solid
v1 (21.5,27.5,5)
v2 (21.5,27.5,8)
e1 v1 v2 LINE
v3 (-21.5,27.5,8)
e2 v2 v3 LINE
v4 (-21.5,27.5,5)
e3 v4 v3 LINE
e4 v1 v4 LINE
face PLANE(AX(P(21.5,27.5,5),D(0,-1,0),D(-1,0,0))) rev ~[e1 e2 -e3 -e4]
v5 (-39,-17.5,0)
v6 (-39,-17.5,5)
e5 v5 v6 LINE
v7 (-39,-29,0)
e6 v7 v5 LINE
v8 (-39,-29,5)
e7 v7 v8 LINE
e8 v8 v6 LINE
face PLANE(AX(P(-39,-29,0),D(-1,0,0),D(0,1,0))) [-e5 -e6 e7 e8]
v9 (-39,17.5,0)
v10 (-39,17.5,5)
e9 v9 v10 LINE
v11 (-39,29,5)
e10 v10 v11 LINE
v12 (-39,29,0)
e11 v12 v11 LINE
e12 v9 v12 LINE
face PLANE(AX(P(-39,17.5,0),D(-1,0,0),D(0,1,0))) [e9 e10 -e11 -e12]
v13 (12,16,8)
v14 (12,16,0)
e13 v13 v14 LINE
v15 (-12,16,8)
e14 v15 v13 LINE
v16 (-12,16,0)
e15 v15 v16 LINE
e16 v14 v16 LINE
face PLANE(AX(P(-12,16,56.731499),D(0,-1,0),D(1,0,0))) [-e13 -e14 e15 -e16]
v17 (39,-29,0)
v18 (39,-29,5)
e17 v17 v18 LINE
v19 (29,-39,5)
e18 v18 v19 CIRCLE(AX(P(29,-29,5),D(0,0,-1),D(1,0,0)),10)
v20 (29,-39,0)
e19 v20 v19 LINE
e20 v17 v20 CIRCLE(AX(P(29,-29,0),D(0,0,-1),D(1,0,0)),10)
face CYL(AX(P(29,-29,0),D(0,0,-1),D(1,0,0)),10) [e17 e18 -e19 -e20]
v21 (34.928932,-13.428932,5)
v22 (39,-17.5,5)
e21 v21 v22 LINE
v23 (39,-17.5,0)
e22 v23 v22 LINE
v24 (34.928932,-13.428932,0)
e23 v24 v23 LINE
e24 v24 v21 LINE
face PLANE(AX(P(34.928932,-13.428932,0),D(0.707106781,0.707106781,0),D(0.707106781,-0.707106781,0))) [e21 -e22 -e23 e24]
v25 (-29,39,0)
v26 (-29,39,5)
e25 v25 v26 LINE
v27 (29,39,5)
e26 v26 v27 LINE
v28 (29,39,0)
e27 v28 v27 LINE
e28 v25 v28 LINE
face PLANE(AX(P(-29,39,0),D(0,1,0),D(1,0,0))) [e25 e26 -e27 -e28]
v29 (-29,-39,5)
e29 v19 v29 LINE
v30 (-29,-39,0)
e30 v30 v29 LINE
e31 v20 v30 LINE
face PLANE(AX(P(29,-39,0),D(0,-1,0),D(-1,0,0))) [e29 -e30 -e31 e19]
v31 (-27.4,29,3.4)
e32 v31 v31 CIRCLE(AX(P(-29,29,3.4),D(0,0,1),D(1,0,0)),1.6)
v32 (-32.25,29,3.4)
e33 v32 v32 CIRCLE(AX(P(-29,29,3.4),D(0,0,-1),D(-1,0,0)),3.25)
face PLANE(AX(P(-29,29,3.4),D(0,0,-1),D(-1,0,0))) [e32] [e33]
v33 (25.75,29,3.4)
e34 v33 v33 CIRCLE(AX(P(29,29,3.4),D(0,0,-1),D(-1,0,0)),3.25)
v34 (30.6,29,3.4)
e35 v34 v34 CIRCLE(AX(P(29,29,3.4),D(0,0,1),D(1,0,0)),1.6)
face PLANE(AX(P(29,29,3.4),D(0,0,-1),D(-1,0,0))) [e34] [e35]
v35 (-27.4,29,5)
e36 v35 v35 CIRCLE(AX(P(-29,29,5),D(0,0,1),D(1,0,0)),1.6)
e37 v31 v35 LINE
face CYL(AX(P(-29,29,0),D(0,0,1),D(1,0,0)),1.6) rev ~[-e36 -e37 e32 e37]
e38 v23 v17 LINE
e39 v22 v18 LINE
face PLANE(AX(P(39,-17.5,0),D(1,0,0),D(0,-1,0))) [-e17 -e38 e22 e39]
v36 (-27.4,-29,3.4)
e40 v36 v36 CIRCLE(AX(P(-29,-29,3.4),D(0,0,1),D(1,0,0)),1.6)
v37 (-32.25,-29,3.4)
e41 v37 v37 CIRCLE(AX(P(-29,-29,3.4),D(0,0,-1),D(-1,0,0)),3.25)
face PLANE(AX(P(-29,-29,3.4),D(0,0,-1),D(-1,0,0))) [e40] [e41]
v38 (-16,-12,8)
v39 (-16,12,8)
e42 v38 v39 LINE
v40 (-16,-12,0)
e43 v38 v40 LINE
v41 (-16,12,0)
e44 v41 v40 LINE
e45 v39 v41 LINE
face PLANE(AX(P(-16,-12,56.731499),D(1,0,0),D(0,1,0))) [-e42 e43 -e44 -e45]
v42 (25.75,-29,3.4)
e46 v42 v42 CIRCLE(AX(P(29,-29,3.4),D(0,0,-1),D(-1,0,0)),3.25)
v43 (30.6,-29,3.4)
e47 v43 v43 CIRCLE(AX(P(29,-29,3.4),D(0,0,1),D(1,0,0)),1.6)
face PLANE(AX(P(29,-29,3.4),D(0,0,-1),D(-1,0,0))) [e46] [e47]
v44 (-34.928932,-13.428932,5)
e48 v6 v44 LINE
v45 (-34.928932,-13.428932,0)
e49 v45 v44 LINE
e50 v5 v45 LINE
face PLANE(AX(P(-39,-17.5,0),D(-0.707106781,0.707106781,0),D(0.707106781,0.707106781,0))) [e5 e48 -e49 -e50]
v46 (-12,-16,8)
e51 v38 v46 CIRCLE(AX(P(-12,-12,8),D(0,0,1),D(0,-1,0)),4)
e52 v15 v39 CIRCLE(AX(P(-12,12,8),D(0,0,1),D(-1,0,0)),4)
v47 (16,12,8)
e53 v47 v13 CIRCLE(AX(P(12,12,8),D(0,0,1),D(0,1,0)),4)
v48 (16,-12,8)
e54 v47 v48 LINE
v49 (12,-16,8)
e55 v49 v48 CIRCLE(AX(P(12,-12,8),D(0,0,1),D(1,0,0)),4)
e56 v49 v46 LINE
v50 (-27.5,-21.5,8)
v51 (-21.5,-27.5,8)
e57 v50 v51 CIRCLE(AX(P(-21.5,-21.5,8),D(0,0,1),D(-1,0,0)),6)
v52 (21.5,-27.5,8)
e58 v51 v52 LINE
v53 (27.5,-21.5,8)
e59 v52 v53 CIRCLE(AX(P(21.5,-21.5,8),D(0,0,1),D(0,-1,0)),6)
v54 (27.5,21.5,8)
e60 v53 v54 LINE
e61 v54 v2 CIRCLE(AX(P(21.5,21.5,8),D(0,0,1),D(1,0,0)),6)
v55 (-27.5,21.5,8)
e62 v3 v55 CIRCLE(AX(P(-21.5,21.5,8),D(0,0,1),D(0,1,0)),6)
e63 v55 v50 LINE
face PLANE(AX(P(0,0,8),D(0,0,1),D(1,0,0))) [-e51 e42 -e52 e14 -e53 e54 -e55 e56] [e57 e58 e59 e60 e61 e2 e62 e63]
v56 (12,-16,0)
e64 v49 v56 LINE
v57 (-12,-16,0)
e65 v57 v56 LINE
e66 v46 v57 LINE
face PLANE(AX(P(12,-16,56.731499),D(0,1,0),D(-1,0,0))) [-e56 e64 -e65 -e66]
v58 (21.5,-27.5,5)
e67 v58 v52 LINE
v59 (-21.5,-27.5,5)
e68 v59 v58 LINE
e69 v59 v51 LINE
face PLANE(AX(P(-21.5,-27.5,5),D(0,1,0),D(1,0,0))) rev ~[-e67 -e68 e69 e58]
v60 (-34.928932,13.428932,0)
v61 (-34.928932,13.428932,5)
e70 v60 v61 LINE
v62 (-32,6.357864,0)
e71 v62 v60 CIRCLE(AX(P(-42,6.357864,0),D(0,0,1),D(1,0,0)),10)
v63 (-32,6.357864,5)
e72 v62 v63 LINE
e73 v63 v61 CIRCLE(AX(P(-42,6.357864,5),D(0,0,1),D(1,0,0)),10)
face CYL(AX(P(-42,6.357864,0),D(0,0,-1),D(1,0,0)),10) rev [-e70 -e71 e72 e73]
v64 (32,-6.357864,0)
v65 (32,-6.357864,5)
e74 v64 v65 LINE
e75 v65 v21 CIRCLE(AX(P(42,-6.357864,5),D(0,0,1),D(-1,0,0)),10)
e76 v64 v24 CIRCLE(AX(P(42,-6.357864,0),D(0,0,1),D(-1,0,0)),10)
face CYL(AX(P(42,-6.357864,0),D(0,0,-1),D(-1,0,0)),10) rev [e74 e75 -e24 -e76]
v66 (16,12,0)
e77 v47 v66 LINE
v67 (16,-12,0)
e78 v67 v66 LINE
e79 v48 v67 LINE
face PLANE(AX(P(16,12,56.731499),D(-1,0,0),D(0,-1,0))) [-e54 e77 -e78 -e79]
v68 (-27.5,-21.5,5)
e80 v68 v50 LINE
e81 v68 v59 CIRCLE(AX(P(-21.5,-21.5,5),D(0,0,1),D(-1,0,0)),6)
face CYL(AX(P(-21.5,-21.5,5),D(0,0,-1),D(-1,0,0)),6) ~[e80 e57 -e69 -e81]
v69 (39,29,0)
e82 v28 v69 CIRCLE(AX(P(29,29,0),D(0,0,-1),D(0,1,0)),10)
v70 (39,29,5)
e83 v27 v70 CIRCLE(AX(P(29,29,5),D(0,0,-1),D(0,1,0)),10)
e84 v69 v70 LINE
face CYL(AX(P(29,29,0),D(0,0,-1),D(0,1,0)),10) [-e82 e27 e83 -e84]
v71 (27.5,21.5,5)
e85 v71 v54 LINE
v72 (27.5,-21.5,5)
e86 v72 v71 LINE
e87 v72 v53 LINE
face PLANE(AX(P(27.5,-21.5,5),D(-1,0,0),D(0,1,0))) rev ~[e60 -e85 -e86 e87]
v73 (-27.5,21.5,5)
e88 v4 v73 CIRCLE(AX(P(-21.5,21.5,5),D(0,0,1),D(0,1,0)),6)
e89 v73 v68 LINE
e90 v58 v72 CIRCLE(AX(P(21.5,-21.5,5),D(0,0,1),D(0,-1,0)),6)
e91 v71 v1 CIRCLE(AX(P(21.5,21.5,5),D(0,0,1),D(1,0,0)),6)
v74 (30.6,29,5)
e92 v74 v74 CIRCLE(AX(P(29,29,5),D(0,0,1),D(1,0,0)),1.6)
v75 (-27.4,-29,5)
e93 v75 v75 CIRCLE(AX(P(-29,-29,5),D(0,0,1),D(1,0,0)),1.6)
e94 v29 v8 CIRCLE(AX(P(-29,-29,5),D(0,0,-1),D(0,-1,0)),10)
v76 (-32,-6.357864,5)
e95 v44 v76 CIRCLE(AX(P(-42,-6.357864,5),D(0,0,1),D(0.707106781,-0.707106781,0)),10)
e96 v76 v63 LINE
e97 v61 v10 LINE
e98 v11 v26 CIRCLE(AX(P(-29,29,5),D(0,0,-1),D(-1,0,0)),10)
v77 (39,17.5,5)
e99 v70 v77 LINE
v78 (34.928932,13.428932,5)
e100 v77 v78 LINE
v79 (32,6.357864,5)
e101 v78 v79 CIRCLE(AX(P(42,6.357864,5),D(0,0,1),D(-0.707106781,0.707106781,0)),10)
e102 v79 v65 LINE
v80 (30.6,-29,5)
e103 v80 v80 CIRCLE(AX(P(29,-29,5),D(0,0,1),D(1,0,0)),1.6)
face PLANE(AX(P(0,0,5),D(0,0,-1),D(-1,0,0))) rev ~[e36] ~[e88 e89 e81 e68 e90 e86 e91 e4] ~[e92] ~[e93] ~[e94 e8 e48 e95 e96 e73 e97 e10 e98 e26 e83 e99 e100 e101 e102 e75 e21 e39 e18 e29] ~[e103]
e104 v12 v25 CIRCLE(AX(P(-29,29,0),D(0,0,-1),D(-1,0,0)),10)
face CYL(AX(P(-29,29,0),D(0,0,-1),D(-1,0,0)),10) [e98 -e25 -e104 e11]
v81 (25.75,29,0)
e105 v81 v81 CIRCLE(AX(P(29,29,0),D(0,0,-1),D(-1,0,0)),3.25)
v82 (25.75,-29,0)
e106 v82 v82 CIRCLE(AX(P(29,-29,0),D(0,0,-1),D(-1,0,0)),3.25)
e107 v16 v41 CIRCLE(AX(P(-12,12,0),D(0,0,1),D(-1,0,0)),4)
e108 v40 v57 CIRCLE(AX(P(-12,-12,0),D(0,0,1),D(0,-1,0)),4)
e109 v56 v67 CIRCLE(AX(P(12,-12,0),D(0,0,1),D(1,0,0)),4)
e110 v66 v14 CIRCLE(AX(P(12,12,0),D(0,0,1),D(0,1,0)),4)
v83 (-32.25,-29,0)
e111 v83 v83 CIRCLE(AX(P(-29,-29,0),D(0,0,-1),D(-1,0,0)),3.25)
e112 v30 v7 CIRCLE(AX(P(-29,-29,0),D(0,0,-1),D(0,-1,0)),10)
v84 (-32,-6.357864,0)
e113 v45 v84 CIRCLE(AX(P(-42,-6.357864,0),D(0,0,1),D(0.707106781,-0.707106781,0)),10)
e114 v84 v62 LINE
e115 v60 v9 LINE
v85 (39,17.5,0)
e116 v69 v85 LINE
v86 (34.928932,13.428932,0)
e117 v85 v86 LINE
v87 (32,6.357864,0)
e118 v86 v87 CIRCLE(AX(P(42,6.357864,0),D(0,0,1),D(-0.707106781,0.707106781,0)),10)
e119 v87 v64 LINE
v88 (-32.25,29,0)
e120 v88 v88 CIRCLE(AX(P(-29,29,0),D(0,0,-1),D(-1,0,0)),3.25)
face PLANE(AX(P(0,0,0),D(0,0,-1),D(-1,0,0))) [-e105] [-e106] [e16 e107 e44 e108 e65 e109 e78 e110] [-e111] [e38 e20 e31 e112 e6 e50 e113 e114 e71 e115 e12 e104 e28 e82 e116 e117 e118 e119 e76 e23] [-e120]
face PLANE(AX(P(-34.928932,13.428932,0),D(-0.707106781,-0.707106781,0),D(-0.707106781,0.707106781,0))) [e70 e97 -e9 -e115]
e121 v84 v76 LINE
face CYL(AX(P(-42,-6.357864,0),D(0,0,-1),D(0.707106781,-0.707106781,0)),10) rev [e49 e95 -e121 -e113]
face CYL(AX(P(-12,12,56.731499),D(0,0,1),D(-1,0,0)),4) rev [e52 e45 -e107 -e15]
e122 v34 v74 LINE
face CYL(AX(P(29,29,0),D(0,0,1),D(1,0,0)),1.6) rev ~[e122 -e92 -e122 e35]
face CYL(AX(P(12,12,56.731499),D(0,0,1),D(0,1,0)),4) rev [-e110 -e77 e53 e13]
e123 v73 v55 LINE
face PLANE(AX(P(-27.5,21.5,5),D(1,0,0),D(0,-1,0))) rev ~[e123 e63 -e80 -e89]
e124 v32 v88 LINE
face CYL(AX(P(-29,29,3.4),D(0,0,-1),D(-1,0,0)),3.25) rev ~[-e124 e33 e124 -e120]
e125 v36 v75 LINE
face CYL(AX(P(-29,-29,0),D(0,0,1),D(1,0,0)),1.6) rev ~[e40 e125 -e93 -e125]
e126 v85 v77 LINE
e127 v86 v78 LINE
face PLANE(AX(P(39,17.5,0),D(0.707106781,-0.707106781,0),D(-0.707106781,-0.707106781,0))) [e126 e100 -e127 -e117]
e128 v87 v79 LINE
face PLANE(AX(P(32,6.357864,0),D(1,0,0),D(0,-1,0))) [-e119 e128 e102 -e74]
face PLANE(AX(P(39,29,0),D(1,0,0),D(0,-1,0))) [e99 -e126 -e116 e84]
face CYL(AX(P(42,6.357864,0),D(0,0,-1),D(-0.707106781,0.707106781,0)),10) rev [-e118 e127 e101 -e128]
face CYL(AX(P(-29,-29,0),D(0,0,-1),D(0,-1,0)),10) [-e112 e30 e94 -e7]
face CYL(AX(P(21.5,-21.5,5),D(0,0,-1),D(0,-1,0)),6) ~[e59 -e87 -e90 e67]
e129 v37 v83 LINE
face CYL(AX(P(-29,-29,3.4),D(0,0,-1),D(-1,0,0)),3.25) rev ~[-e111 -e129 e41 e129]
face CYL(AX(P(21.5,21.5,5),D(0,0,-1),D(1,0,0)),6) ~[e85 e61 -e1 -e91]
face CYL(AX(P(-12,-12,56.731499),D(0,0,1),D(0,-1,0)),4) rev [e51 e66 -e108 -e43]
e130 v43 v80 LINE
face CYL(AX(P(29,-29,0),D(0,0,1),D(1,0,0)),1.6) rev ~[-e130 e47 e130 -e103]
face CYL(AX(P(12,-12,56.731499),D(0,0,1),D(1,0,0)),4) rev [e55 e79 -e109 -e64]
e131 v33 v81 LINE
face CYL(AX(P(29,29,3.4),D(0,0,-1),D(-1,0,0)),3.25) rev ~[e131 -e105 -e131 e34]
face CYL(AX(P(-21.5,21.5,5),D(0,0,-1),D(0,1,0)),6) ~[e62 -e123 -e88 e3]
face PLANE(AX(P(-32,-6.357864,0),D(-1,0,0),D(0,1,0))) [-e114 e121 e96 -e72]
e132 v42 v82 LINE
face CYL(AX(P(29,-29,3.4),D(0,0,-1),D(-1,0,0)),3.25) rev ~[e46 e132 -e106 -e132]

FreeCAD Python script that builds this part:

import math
import FreeCAD as App
import Part
import Sketcher
from FreeCAD import Vector

doc = App.newDocument("Part")
body = doc.addObject("PartDesign::Body", "Body")

sketch1 = body.newObject("Sketcher::SketchObject", "Sketch")
sketch1.AttachmentSupport = (doc.getObject("XY_Plane"), [""])
sketch1.MapMode = "FlatFace"
sketch1.addGeometry([
    Part.LineSegment(Vector(29, 39, 0), Vector(-29, 39, 0)),
    Part.ArcOfCircle(Part.Circle(Vector(-29, 29, 0), Vector(0, 0, 1), 10), math.radians(90), math.radians(180)),
    Part.LineSegment(Vector(-39, 29, 0), Vector(-39, 18, 0)),
    Part.LineSegment(Vector(-39, 18, 0), Vector(-35, 13, 0)),
    Part.ArcOfCircle(Part.Circle(Vector(-42, 6, 0), Vector(0, 0, 1), 10), math.radians(0), math.radians(45)),
    Part.LineSegment(Vector(-32, 6, 0), Vector(-32, -6, 0)),
    Part.ArcOfCircle(Part.Circle(Vector(-42, -6, 0), Vector(0, 0, 1), 10), math.radians(-45), math.radians(0)),
    Part.LineSegment(Vector(-35, -13, 0), Vector(-39, -18, 0)),
    Part.LineSegment(Vector(-39, -18, 0), Vector(-39, -29, 0)),
    Part.ArcOfCircle(Part.Circle(Vector(-29, -29, 0), Vector(0, 0, 1), 10), math.radians(180), math.radians(270)),
    Part.LineSegment(Vector(-29, -39, 0), Vector(29, -39, 0)),
    Part.ArcOfCircle(Part.Circle(Vector(29, -29, 0), Vector(0, 0, 1), 10), math.radians(-90), math.radians(0)),
    Part.LineSegment(Vector(39, -29, 0), Vector(39, -18, 0)),
    Part.LineSegment(Vector(39, -18, 0), Vector(35, -13, 0)),
    Part.ArcOfCircle(Part.Circle(Vector(42, -6, 0), Vector(0, 0, 1), 10), math.radians(180), math.radians(225)),
    Part.LineSegment(Vector(32, -6, 0), Vector(32, 6, 0)),
    Part.ArcOfCircle(Part.Circle(Vector(42, 6, 0), Vector(0, 0, 1), 10), math.radians(135), math.radians(180)),
    Part.LineSegment(Vector(35, 13, 0), Vector(39, 18, 0)),
    Part.LineSegment(Vector(39, 18, 0), Vector(39, 29, 0)),
    Part.ArcOfCircle(Part.Circle(Vector(29, 29, 0), Vector(0, 0, 1), 10), math.radians(0), math.radians(90)),
], False)
sketch1.addConstraint([
    Sketcher.Constraint("Tangent", 0, 2, 1, 1),
    Sketcher.Constraint("Tangent", 1, 2, 2, 1),
    Sketcher.Constraint("Coincident", 2, 2, 3, 1),
    Sketcher.Constraint("Tangent", 3, 2, 4, 2),
    Sketcher.Constraint("Tangent", 4, 1, 5, 1),
    Sketcher.Constraint("Tangent", 5, 2, 6, 2),
    Sketcher.Constraint("Tangent", 6, 1, 7, 1),
    Sketcher.Constraint("Coincident", 7, 2, 8, 1),
    Sketcher.Constraint("Tangent", 8, 2, 9, 1),
    Sketcher.Constraint("Tangent", 9, 2, 10, 1),
    Sketcher.Constraint("Tangent", 10, 2, 11, 1),
    Sketcher.Constraint("Tangent", 11, 2, 12, 1),
    Sketcher.Constraint("Coincident", 12, 2, 13, 1),
    Sketcher.Constraint("Tangent", 13, 2, 14, 2),
    Sketcher.Constraint("Tangent", 14, 1, 15, 1),
    Sketcher.Constraint("Tangent", 15, 2, 16, 2),
    Sketcher.Constraint("Tangent", 16, 1, 17, 1),
    Sketcher.Constraint("Coincident", 17, 2, 18, 1),
    Sketcher.Constraint("Tangent", 18, 2, 19, 1),
    Sketcher.Constraint("Tangent", 19, 2, 0, 1),
    Sketcher.Constraint("Horizontal", 0),
    Sketcher.Constraint("Vertical", 2),
    Sketcher.Constraint("Vertical", 5),
    Sketcher.Constraint("Vertical", 8),
    Sketcher.Constraint("Horizontal", 10),
    Sketcher.Constraint("Vertical", 12),
    Sketcher.Constraint("Vertical", 15),
    Sketcher.Constraint("Vertical", 18),
    Sketcher.Constraint("Equal", 1, 4),
    Sketcher.Constraint("Equal", 4, 6),
    Sketcher.Constraint("Equal", 6, 9),
    Sketcher.Constraint("Equal", 9, 11),
    Sketcher.Constraint("Equal", 11, 14),
    Sketcher.Constraint("Equal", 14, 16),
    Sketcher.Constraint("Equal", 16, 19),
    Sketcher.Constraint("Symmetric", 1, 3, 11, 3, -1, 1),
    Sketcher.Constraint("Symmetric", 4, 3, 14, 3, -1, 1),
    Sketcher.Constraint("Symmetric", 6, 1, 16, 1, -1, 1),
    Sketcher.Constraint("Symmetric", 7, 2, 12, 2, -2),
    Sketcher.Constraint("Symmetric", 3, 2, 16, 1, -2),
    Sketcher.Constraint("Perpendicular", 3, 7),
    Sketcher.Constraint("Horizontal", 2, 2, 17, 2),
    Sketcher.Constraint("Radius", 1, 10.0),
    Sketcher.Constraint("DistanceX", 0, 2, 0, 1, 58.0),
    Sketcher.Constraint("DistanceY", 2, 2, 2, 1, 11.5),
    Sketcher.Constraint("DistanceY", -1, 1, 1, 3, 29.0),
    Sketcher.Constraint("DistanceX", 4, 3, -1, 1, 42.0),
])
pad1 = body.newObject("PartDesign::Pad", "Pad")
pad1.Profile = sketch1
pad1.Length = 5

sketch2 = body.newObject("Sketcher::SketchObject", "Sketch001")
sketch2.AttachmentSupport = (doc.getObject("XY_Plane"), [""])
sketch2.MapMode = "FlatFace"
sketch2.AttachmentOffset = App.Placement(Vector(0, 0, 5), App.Rotation())
sketch2.addGeometry([
    Part.LineSegment(Vector(-22, 28, 0), Vector(22, 28, 0)),
    Part.ArcOfCircle(Part.Circle(Vector(22, 22, 0), Vector(0, 0, 1), 6), math.radians(0), math.radians(90)),
    Part.LineSegment(Vector(28, 22, 0), Vector(28, -22, 0)),
    Part.ArcOfCircle(Part.Circle(Vector(22, -22, 0), Vector(0, 0, 1), 6), math.radians(-90), math.radians(0)),
    Part.LineSegment(Vector(22, -28, 0), Vector(-22, -28, 0)),
    Part.ArcOfCircle(Part.Circle(Vector(-22, -22, 0), Vector(0, 0, 1), 6), math.radians(180), math.radians(270)),
    Part.LineSegment(Vector(-28, -22, 0), Vector(-28, 22, 0)),
    Part.ArcOfCircle(Part.Circle(Vector(-22, 22, 0), Vector(0, 0, 1), 6), math.radians(90), math.radians(180)),
], False)
sketch2.addConstraint([
    Sketcher.Constraint("Tangent", 0, 2, 1, 2),
    Sketcher.Constraint("Tangent", 1, 1, 2, 1),
    Sketcher.Constraint("Tangent", 2, 2, 3, 2),
    Sketcher.Constraint("Tangent", 3, 1, 4, 1),
    Sketcher.Constraint("Tangent", 4, 2, 5, 2),
    Sketcher.Constraint("Tangent", 5, 1, 6, 1),
    Sketcher.Constraint("Tangent", 6, 2, 7, 2),
    Sketcher.Constraint("Tangent", 7, 1, 0, 1),
    Sketcher.Constraint("Horizontal", 0),
    Sketcher.Constraint("Vertical", 2),
    Sketcher.Constraint("Horizontal", 4),
    Sketcher.Constraint("Vertical", 6),
    Sketcher.Constraint("Equal", 1, 3),
    Sketcher.Constraint("Equal", 3, 5),
    Sketcher.Constraint("Equal", 5, 7),
    Sketcher.Constraint("Symmetric", 1, 3, 5, 3, -1, 1),
    Sketcher.Constraint("Equal", 4, 2),
    Sketcher.Constraint("Radius", 1, 6.0),
    Sketcher.Constraint("DistanceX", 0, 1, 0, 2, 43.0),
])
pad2 = body.newObject("PartDesign::Pad", "Pad001")
pad2.Profile = sketch2
pad2.Length = 3

sketch3 = body.newObject("Sketcher::SketchObject", "Sketch002")
sketch3.AttachmentSupport = (doc.getObject("XY_Plane"), [""])
sketch3.MapMode = "FlatFace"
sketch3.addGeometry([
    Part.LineSegment(Vector(12, -16, 0), Vector(-12, -16, 0)),
    Part.ArcOfCircle(Part.Circle(Vector(-12, -12, 0), Vector(0, 0, 1), 4), math.radians(180), math.radians(270)),
    Part.LineSegment(Vector(-16, -12, 0), Vector(-16, 12, 0)),
    Part.ArcOfCircle(Part.Circle(Vector(-12, 12, 0), Vector(0, 0, 1), 4), math.radians(90), math.radians(180)),
    Part.LineSegment(Vector(-12, 16, 0), Vector(12, 16, 0)),
    Part.ArcOfCircle(Part.Circle(Vector(12, 12, 0), Vector(0, 0, 1), 4), math.radians(0), math.radians(90)),
    Part.LineSegment(Vector(16, 12, 0), Vector(16, -12, 0)),
    Part.ArcOfCircle(Part.Circle(Vector(12, -12, 0), Vector(0, 0, 1), 4), math.radians(-90), math.radians(0)),
], False)
sketch3.addConstraint([
    Sketcher.Constraint("Tangent", 0, 2, 1, 2),
    Sketcher.Constraint("Tangent", 1, 1, 2, 1),
    Sketcher.Constraint("Tangent", 2, 2, 3, 2),
    Sketcher.Constraint("Tangent", 3, 1, 4, 1),
    Sketcher.Constraint("Tangent", 4, 2, 5, 2),
    Sketcher.Constraint("Tangent", 5, 1, 6, 1),
    Sketcher.Constraint("Tangent", 6, 2, 7, 2),
    Sketcher.Constraint("Tangent", 7, 1, 0, 1),
    Sketcher.Constraint("Horizontal", 0),
    Sketcher.Constraint("Vertical", 2),
    Sketcher.Constraint("Horizontal", 4),
    Sketcher.Constraint("Vertical", 6),
    Sketcher.Constraint("Equal", 1, 3),
    Sketcher.Constraint("Equal", 3, 5),
    Sketcher.Constraint("Equal", 5, 7),
    Sketcher.Constraint("Symmetric", 1, 3, 5, 3, -1, 1),
    Sketcher.Constraint("Equal", 4, 2),
    Sketcher.Constraint("Radius", 1, 4.0),
    Sketcher.Constraint("DistanceX", 0, 2, 0, 1, 24.0),
])
pocket1 = body.newObject("PartDesign::Pocket", "Pocket")
pocket1.Profile = sketch3
pocket1.Type = "ThroughAll"
pocket1.Midplane = True

sketch4 = body.newObject("Sketcher::SketchObject", "Sketch003")
sketch4.AttachmentSupport = (doc.getObject("XY_Plane"), [""])
sketch4.MapMode = "FlatFace"
sketch4.addGeometry([
    Part.Circle(Vector(-29, -29, 0), Vector(0, 0, 1), 1.6),
    Part.Circle(Vector(-29, 29, 0), Vector(0, 0, 1), 1.6),
    Part.Circle(Vector(29, 29, 0), Vector(0, 0, 1), 1.6),
    Part.Circle(Vector(29, -29, 0), Vector(0, 0, 1), 1.6),
], False)
sketch4.addConstraint([
    Sketcher.Constraint("Equal", 0, 1),
    Sketcher.Constraint("Equal", 1, 2),
    Sketcher.Constraint("Equal", 2, 3),
    Sketcher.Constraint("Symmetric", 0, 3, 2, 3, -1, 1),
    Sketcher.Constraint("Symmetric", 1, 3, 3, 3, -1, 1),
    Sketcher.Constraint("Symmetric", 1, 3, 2, 3, -2),
    Sketcher.Constraint("Diameter", 0, 3.2),
    Sketcher.Constraint("DistanceX", 0, 3, -1, 1, 29.0),
    Sketcher.Constraint("DistanceY", 0, 3, -1, 1, 29.0),
])
doc.recompute()
hole = body.newObject("PartDesign::Hole", "Hole")
hole.Profile = sketch4
hole.ThreadType = "None"
hole.Diameter = 3.2
hole.DepthType = "ThroughAll"
hole.HoleCutType = "Counterbore"
hole.HoleCutDiameter = 6.5
hole.HoleCutDepth = 3.4
hole.Reversed = True

doc.recompute()
